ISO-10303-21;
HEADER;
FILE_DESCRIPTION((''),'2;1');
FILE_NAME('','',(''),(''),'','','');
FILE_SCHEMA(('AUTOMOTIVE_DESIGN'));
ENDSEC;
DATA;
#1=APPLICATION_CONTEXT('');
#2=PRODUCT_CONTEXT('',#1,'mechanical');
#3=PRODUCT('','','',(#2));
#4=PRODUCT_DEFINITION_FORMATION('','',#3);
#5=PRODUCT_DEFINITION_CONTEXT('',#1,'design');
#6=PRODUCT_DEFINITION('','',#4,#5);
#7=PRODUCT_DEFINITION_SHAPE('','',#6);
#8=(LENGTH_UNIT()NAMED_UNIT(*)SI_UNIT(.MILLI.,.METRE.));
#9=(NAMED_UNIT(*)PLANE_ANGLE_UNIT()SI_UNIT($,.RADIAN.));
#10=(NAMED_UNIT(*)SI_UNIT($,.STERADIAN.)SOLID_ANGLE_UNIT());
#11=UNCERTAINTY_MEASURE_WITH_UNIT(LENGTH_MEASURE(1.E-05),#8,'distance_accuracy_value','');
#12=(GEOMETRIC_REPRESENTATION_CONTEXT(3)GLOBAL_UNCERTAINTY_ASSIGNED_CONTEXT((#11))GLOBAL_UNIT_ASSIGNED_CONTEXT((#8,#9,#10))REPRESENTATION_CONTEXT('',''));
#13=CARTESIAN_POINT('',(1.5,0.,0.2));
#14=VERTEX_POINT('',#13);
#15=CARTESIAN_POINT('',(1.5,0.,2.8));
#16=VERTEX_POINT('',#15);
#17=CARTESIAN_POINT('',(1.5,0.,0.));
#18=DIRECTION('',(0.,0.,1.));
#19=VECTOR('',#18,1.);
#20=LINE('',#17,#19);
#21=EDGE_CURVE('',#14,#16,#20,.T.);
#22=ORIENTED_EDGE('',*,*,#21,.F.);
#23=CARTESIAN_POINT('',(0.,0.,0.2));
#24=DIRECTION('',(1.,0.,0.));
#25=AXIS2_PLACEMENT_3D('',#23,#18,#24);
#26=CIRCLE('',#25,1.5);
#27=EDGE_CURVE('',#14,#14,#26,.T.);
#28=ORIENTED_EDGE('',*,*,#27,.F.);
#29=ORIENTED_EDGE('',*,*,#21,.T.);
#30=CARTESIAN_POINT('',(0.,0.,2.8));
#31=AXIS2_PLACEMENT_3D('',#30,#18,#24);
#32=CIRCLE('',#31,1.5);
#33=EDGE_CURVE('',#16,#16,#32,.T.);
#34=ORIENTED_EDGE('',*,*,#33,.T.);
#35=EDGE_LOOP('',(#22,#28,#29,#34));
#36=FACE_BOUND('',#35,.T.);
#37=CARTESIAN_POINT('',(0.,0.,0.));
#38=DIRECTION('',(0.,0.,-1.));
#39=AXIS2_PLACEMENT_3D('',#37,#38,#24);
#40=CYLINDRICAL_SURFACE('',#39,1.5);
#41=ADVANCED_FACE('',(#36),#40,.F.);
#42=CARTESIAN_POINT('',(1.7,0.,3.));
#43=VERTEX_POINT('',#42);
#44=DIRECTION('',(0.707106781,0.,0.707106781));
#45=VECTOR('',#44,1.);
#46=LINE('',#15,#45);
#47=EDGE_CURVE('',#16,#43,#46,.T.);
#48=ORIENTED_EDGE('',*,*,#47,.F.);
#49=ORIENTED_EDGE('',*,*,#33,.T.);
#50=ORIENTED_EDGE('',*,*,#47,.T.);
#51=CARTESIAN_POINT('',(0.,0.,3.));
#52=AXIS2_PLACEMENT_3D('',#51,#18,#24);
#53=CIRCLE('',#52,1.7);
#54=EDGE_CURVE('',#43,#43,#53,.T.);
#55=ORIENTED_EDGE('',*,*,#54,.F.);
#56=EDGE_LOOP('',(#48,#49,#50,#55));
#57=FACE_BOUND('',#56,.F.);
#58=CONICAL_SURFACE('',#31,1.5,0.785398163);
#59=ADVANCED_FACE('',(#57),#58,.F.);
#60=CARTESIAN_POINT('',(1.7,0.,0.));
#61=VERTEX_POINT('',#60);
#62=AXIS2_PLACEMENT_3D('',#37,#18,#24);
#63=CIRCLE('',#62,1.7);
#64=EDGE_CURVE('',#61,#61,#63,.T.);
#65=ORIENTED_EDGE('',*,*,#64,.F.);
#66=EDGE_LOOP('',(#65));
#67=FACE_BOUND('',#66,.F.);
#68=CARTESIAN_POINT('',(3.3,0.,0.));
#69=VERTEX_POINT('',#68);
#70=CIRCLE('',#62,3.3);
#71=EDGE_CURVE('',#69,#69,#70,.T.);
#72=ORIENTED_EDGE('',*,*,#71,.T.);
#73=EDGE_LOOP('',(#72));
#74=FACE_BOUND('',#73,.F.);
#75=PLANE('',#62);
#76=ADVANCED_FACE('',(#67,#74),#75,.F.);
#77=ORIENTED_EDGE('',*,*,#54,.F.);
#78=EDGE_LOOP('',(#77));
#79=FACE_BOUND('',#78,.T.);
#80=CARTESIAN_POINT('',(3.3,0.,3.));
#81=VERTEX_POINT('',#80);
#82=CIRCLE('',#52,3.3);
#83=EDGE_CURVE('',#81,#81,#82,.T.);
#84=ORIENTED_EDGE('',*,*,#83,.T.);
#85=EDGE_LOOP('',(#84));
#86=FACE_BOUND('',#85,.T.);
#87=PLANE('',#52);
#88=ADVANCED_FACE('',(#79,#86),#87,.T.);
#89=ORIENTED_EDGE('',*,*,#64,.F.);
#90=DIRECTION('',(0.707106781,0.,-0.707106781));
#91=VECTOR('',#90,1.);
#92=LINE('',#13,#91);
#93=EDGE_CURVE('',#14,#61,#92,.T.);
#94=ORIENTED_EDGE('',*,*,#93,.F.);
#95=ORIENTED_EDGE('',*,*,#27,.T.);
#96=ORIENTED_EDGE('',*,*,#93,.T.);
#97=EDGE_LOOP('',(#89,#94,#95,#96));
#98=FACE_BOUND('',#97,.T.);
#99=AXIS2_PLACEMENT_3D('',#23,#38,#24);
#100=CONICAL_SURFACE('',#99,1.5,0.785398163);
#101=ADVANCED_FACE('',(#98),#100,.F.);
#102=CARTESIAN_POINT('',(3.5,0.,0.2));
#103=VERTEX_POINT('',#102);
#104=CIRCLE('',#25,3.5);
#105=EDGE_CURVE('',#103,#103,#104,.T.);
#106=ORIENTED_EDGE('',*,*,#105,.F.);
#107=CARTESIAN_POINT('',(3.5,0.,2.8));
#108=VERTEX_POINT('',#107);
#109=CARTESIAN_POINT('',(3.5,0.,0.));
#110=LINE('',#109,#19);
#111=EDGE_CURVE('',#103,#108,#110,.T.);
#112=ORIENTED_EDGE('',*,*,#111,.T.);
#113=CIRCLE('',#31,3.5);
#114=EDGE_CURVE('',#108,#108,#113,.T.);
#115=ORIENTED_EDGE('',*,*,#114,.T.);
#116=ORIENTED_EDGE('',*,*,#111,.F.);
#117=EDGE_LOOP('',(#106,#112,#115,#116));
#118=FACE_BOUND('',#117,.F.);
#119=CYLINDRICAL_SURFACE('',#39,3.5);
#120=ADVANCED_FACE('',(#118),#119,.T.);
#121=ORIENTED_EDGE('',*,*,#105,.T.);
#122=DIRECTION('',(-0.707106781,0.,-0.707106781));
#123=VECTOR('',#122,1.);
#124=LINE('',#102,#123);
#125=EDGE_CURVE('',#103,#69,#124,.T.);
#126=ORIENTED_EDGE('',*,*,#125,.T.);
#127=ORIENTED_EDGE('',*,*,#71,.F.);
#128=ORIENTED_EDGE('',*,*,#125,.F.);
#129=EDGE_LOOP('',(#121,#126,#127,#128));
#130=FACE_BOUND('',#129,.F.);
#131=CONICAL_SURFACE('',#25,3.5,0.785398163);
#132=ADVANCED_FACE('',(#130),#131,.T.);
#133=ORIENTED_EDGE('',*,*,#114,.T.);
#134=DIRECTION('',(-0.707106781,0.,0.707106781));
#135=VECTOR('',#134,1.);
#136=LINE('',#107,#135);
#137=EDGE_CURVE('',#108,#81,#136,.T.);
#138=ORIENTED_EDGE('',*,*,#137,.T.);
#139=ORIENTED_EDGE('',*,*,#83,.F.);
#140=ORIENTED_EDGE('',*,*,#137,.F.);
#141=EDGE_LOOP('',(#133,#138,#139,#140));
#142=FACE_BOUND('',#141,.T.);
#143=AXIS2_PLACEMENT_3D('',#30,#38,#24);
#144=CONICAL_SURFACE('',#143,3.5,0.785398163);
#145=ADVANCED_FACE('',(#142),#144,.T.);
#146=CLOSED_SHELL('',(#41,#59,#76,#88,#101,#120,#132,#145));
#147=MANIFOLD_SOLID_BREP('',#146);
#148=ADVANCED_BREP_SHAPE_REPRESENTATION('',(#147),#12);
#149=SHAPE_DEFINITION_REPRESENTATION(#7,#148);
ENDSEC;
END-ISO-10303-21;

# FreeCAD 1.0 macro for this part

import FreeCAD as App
import Part
import Sketcher

V = App.Vector
Q = App.Units.Quantity


def edges_at(feature, points):
    """Names of the edges that pass closest to the given points."""
    edges = feature.Shape.Edges
    near = lambda p: min(range(len(edges)), key=lambda i: edges[i].distToShape(Part.Vertex(*p))[0])
    return sorted({f"Edge{near(p) + 1}" for p in points})

doc = App.newDocument("Part")
body = doc.addObject("PartDesign::Body", "Body")

# Sketch on XY plane
sketch1 = doc.addObject("Sketcher::SketchObject", "Sketch")
body.addObject(sketch1)
sketch1.AttachmentSupport = (doc.XY_Plane, [""])
sketch1.MapMode = "FlatFace"
sketch1.addGeometry(Part.Circle(V(0, 0, 0), V(0, 0, 1), 3.5), False)
sketch1.addGeometry(Part.Circle(V(0, 0, 0), V(0, 0, 1), 1.5), False)
sketch1.addConstraint(Sketcher.Constraint("Coincident", 0, 3, -1, 1))
sketch1.addConstraint(Sketcher.Constraint("Coincident", 1, 3, -1, 1))
sketch1.addConstraint(Sketcher.Constraint("Diameter", 0, Q("7 mm")))
sketch1.addConstraint(Sketcher.Constraint("Diameter", 1, Q("3 mm")))
pad1 = doc.addObject("PartDesign::Pad", "Pad")
body.addObject(pad1)
pad1.Profile = sketch1
pad1.Length = 3
doc.recompute()

chamfer = doc.addObject("PartDesign::Chamfer", "Chamfer")
body.addObject(chamfer)
chamfer.Base = (pad1, edges_at(pad1, [
    (-3.5, 0, 3),
    (-3.5, 0, 0),
    (-1.5, 0, 3),
    (-1.5, 0, 0),
]))
chamfer.Size = 0.2

doc.recompute()
